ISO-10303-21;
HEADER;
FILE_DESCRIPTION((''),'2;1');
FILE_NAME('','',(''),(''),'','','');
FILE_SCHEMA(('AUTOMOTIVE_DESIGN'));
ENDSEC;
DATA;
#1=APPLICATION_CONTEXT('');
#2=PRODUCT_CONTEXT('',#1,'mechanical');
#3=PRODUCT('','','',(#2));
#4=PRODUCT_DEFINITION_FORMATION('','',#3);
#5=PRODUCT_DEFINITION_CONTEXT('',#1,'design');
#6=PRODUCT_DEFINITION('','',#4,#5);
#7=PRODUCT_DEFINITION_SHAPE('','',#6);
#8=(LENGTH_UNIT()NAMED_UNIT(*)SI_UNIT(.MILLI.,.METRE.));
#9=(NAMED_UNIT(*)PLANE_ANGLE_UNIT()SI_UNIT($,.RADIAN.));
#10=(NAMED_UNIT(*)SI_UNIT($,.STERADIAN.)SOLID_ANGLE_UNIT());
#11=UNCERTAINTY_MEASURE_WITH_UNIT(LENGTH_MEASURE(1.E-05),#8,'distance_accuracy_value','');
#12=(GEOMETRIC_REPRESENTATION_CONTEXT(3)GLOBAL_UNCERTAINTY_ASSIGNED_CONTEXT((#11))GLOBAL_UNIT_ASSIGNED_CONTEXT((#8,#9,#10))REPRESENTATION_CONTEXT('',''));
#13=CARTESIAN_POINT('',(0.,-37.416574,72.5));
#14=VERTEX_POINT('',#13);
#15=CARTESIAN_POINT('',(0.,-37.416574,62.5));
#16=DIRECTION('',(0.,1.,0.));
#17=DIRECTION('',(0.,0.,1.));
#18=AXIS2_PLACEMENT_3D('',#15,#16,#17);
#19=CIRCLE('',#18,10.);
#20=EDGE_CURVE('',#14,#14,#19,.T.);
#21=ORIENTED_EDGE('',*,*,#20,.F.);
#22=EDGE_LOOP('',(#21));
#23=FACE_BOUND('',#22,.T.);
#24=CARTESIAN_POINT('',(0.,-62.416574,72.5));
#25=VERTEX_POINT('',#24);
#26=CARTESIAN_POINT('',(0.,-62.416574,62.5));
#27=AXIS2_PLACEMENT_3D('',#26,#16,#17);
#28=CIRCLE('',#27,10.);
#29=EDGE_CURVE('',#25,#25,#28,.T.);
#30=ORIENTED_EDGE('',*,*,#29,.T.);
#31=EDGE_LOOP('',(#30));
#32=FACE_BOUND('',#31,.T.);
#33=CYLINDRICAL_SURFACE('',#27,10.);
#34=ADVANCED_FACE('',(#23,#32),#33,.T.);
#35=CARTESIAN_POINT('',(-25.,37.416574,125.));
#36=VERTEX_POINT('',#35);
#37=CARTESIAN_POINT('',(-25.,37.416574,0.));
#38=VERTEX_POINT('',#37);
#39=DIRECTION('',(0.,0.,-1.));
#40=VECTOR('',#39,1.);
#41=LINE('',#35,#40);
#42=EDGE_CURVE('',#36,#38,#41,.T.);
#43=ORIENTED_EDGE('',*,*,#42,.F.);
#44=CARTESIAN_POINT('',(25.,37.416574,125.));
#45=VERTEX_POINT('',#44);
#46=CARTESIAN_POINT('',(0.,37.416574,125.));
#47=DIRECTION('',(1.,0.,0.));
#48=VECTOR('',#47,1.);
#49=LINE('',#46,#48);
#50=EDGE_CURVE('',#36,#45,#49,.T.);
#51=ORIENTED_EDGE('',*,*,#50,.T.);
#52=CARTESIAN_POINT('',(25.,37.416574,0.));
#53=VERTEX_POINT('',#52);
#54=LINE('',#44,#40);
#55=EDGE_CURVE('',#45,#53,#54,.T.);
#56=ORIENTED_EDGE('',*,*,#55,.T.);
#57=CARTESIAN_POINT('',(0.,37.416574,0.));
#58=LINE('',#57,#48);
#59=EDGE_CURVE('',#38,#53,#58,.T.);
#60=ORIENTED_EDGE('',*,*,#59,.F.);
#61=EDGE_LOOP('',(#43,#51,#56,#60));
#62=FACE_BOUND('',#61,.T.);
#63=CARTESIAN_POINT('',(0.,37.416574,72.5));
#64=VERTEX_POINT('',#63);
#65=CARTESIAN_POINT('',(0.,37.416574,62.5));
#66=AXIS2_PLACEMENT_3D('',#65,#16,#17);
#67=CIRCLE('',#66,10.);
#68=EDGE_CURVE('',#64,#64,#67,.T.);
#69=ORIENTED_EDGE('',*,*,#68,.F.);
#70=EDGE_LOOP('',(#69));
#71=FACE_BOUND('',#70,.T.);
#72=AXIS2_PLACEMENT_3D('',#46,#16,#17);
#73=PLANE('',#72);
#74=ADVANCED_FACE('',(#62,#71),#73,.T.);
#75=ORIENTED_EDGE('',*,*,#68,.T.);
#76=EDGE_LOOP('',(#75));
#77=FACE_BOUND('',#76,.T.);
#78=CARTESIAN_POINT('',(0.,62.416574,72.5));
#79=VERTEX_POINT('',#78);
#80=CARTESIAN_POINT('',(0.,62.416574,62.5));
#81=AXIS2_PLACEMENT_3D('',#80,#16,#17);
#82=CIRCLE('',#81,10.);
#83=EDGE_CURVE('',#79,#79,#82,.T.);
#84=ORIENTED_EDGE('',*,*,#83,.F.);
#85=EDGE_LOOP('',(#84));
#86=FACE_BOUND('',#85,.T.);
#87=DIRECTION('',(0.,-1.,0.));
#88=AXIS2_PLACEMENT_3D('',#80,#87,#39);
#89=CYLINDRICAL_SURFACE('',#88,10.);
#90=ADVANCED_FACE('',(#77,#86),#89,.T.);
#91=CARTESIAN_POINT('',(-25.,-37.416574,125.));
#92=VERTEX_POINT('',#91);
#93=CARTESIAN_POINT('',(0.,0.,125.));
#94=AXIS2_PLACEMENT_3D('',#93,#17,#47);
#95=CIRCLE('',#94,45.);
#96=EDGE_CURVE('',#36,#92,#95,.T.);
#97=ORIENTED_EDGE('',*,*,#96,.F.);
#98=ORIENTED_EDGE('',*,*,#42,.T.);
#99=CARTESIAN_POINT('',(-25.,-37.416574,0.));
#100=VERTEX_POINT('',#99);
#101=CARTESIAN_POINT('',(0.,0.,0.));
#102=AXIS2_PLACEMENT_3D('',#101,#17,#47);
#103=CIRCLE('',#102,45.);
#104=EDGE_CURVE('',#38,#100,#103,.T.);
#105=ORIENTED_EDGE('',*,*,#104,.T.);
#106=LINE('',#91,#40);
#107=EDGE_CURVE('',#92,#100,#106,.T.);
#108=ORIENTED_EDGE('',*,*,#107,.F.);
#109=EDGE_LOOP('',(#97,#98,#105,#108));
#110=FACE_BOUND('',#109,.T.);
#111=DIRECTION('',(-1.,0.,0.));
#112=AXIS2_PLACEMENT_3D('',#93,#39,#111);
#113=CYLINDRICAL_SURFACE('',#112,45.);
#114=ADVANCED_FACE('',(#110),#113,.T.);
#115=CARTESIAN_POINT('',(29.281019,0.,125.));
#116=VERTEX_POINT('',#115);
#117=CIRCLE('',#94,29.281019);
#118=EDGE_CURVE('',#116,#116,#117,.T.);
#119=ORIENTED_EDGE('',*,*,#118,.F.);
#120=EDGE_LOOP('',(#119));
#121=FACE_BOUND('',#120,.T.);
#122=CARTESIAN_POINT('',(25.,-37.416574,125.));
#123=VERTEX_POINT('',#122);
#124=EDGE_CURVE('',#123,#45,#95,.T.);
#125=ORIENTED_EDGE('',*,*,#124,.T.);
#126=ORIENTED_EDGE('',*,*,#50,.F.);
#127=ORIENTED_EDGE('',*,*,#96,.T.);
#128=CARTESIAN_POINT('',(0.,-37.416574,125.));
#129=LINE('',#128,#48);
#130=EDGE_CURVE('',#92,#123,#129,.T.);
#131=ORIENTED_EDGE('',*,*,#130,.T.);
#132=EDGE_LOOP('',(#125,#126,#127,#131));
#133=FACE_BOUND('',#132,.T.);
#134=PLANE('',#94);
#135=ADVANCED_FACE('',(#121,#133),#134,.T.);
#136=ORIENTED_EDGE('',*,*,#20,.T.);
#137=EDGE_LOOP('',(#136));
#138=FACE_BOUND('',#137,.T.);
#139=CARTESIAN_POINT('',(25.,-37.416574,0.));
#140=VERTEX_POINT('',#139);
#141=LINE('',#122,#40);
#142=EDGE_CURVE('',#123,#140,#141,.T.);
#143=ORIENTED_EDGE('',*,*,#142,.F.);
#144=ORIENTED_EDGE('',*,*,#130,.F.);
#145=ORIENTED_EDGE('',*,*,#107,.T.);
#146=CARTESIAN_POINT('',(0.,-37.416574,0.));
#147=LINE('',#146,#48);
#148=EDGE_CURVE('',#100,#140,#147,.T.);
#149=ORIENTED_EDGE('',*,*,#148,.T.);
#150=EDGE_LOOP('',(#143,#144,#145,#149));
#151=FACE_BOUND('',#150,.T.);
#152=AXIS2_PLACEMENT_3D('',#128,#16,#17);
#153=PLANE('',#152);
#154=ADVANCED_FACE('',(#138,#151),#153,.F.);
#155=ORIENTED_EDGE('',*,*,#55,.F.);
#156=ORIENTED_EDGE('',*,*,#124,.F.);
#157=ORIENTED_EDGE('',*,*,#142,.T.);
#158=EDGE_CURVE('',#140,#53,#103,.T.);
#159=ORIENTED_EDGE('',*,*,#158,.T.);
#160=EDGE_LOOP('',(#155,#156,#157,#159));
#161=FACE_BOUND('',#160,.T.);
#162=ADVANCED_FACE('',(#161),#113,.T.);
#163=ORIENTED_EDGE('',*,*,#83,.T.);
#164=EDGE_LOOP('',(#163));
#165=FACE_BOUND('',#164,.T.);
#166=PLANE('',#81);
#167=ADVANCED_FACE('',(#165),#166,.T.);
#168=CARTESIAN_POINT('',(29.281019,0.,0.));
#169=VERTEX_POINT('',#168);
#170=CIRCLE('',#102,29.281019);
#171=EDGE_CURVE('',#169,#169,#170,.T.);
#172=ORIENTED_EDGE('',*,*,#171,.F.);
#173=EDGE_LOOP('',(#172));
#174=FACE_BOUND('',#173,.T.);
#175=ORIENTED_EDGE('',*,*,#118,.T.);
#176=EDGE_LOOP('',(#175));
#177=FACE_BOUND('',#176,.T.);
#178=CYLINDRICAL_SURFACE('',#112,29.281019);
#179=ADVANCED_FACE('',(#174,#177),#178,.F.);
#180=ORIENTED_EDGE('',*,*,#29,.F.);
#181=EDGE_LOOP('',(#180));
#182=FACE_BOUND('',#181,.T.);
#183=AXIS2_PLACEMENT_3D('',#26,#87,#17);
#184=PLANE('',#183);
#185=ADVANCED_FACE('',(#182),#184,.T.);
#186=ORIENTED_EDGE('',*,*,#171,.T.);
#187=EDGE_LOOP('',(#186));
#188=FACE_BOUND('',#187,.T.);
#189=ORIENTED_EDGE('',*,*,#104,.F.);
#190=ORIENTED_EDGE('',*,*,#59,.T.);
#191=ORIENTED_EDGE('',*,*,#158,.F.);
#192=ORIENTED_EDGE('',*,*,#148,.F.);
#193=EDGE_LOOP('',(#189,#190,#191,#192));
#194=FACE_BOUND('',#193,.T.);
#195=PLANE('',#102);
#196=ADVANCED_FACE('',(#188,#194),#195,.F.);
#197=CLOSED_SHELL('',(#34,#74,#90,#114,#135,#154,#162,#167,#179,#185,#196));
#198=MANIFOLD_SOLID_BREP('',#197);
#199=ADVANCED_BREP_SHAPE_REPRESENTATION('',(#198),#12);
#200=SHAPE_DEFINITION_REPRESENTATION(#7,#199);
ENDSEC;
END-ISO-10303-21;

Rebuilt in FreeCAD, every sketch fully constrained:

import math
import FreeCAD as App
import Part
import Sketcher

doc = App.newDocument("Part")
body = doc.addObject("PartDesign::Body", "Body")

# Sketch on XY plane
sketch1 = body.newObject("Sketcher::SketchObject", "Sketch")
sketch1.AttachmentSupport = (doc.getObject("XY_Plane"), [""])
sketch1.MapMode = "FlatFace"
sketch1.addGeometry(Part.LineSegment(App.Vector(25, 37.416574, 0), App.Vector(-25, 37.416574, 0)), False)
sketch1.addGeometry(Part.ArcOfCircle(Part.Circle(App.Vector(0, 0, 0), App.Vector(0, 0, 1), 45), math.radians(123.748989), math.radians(236.251011)), False)
sketch1.addGeometry(Part.LineSegment(App.Vector(-25, -37.416574, 0), App.Vector(25, -37.416574, 0)), False)
sketch1.addGeometry(Part.ArcOfCircle(Part.Circle(App.Vector(0, 0, 0), App.Vector(0, 0, 1), 45), math.radians(-56.251011), math.radians(0)), False)
sketch1.addGeometry(Part.ArcOfCircle(Part.Circle(App.Vector(0, 0, 0), App.Vector(0, 0, 1), 45), math.radians(0), math.radians(56.251011)), False)
sketch1.addGeometry(Part.Circle(App.Vector(0, 0, 0), App.Vector(0, 0, 1), 29.281019), False)
sketch1.addConstraint(Sketcher.Constraint("Coincident", 0, 2, 1, 1))
sketch1.addConstraint(Sketcher.Constraint("Coincident", 1, 2, 2, 1))
sketch1.addConstraint(Sketcher.Constraint("Coincident", 2, 2, 3, 1))
sketch1.addConstraint(Sketcher.Constraint("Tangent", 3, 2, 4, 1))
sketch1.addConstraint(Sketcher.Constraint("Coincident", 4, 2, 0, 1))
sketch1.addConstraint(Sketcher.Constraint("Horizontal", 0))
sketch1.addConstraint(Sketcher.Constraint("Horizontal", 2))
sketch1.addConstraint(Sketcher.Constraint("Coincident", 1, 3, -1, 1))
sketch1.addConstraint(Sketcher.Constraint("Coincident", 3, 3, -1, 1))
sketch1.addConstraint(Sketcher.Constraint("Coincident", 5, 3, -1, 1))
sketch1.addConstraint(Sketcher.Constraint("Equal", 1, 3))
sketch1.addConstraint(Sketcher.Constraint("Equal", 3, 4))
sketch1.addConstraint(Sketcher.Constraint("PointOnObject", 3, 2, -1))
sketch1.addConstraint(Sketcher.Constraint("Vertical", 0, 2, 1, 2))
sketch1.addConstraint(Sketcher.Constraint("Radius", 1, 45.0))
sketch1.addConstraint(Sketcher.Constraint("DistanceX", 0, 2, 0, 1, 50.0))
sketch1.addConstraint(Sketcher.Constraint("Diameter", 5, 58.562037))
pad1 = body.newObject("PartDesign::Pad", "Pad")
pad1.Profile = sketch1
pad1.Length = 125

# Sketch on XZ plane
sketch2 = body.newObject("Sketcher::SketchObject", "Sketch001")
sketch2.AttachmentSupport = (doc.getObject("XZ_Plane"), [""])
sketch2.MapMode = "FlatFace"
sketch2.AttachmentOffset = App.Placement(App.Vector(0, 0, -37.416574), App.Rotation())
sketch2.addGeometry(Part.Circle(App.Vector(0, 62.5, 0), App.Vector(0, 0, 1), 10), False)
sketch2.addConstraint(Sketcher.Constraint("PointOnObject", 0, 3, -2))
sketch2.addConstraint(Sketcher.Constraint("Diameter", 0, 20.0))
sketch2.addConstraint(Sketcher.Constraint("DistanceY", -1, 1, 0, 3, 62.5))
pad2 = body.newObject("PartDesign::Pad", "Pad001")
pad2.Profile = sketch2
pad2.Length = 25
pad2.Reversed = True
doc.recompute()

mirrored = body.newObject("PartDesign::Mirrored", "Mirrored")
mirrored.Originals = [pad2]
mirrored.MirrorPlane = (doc.getObject("XZ_Plane"), [""])
body.Tip = mirrored

doc.recompute()
